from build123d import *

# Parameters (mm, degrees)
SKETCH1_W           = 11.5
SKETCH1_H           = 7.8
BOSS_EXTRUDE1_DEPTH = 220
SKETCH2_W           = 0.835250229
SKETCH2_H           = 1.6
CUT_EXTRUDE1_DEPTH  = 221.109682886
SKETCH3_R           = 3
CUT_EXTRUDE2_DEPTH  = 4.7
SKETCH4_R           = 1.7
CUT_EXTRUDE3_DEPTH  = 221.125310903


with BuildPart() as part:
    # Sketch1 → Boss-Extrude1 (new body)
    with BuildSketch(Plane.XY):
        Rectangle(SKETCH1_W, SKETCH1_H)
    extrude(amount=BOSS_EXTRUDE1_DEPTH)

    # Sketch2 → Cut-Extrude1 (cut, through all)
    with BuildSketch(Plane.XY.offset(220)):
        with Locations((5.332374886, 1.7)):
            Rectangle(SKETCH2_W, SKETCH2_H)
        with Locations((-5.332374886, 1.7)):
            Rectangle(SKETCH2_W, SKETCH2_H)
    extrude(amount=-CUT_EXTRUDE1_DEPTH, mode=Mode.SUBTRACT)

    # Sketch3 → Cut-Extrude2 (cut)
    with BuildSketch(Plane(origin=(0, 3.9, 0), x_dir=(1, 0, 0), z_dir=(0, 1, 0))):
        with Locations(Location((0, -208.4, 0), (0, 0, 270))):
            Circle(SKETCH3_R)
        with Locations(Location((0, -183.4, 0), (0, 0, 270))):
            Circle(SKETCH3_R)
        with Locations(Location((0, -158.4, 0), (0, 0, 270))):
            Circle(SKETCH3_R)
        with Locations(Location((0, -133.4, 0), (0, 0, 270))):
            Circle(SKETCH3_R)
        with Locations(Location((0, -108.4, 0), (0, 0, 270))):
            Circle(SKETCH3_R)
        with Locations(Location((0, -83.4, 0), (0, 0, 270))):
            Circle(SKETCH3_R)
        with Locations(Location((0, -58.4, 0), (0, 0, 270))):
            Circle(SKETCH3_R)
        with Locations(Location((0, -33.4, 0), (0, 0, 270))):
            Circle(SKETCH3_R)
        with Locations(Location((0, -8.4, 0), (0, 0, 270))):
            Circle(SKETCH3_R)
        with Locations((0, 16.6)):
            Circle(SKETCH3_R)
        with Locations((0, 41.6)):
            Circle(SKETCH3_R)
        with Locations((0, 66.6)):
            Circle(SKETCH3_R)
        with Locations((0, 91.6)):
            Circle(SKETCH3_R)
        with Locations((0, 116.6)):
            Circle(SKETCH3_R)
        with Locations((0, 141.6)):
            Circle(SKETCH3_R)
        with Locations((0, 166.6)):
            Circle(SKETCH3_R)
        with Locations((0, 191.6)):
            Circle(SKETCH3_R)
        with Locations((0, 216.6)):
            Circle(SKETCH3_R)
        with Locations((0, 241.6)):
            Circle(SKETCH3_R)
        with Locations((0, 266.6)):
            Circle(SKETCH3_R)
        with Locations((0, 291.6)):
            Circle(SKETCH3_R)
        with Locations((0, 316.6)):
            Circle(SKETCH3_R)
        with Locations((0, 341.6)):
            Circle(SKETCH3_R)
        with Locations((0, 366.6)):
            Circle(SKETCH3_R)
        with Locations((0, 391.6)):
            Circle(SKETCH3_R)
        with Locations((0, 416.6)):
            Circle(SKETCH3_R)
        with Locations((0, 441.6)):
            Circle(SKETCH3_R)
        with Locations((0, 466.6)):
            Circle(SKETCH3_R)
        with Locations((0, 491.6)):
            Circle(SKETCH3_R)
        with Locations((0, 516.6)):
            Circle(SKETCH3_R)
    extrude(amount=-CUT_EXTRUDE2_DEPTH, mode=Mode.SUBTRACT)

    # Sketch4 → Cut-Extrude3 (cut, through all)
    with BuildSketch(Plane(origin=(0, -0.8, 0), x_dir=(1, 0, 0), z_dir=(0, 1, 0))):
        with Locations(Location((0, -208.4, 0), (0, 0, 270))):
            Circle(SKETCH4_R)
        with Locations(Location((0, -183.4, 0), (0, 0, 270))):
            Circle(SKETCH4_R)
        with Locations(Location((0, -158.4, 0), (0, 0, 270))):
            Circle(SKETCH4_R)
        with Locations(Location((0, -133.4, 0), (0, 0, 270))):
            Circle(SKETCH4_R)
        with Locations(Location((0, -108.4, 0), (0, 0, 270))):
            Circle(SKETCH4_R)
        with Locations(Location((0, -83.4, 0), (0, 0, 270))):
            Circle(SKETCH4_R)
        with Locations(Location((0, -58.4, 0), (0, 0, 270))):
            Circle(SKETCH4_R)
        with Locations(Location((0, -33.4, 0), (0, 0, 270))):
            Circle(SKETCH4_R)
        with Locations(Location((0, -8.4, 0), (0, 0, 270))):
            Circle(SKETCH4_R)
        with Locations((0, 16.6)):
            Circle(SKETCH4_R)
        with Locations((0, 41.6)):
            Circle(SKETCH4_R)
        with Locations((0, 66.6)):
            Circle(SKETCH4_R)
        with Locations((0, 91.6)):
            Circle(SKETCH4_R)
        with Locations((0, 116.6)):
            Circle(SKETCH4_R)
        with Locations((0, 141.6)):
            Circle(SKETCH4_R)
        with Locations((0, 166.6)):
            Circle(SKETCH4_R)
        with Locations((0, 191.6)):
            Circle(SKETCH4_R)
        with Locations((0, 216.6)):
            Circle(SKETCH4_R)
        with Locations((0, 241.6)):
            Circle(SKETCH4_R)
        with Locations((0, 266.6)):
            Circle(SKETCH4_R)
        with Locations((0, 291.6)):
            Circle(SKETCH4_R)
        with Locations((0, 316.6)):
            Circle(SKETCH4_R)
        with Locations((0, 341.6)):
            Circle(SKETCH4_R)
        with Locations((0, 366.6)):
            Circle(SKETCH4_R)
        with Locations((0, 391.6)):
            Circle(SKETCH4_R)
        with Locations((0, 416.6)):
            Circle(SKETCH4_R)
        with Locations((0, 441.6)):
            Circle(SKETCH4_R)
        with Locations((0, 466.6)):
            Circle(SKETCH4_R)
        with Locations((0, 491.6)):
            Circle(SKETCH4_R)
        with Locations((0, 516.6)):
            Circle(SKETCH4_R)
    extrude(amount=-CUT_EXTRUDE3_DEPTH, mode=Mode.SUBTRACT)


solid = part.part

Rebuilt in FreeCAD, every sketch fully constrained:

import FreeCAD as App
import Part
import Sketcher

V = App.Vector
Q = App.Units.Quantity

doc = App.newDocument("Part")
body = doc.addObject("PartDesign::Body", "Body")

sketch1 = doc.addObject("Sketcher::SketchObject", "Sketch")
body.addObject(sketch1)
sketch1.AttachmentSupport = (doc.XY_Plane, [""])
sketch1.MapMode = "FlatFace"
sketch1.addGeometry([
    Part.LineSegment(V(-6, 4, 0), V(-6, -4, 0)),
    Part.LineSegment(V(-6, -4, 0), V(6, -4, 0)),
    Part.LineSegment(V(6, -4, 0), V(6, 4, 0)),
    Part.LineSegment(V(6, 4, 0), V(-6, 4, 0)),
], False)
sketch1.addConstraint([
    Sketcher.Constraint("Coincident", 0, 2, 1, 1),
    Sketcher.Constraint("Coincident", 1, 2, 2, 1),
    Sketcher.Constraint("Coincident", 2, 2, 3, 1),
    Sketcher.Constraint("Coincident", 3, 2, 0, 1),
    Sketcher.Constraint("Vertical", 0),
    Sketcher.Constraint("Horizontal", 1),
    Sketcher.Constraint("Vertical", 2),
    Sketcher.Constraint("Horizontal", 3),
    Sketcher.Constraint("Symmetric", 0, 2, 2, 2, -1, 1),
    Sketcher.Constraint("DistanceX", 1, 1, 1, 2, Q("11.5 mm")),
    Sketcher.Constraint("DistanceY", 0, 2, 0, 1, Q("7.8 mm")),
])
pad1 = doc.addObject("PartDesign::Pad", "Pad")
body.addObject(pad1)
pad1.Profile = sketch1
pad1.Length = 220

sketch2 = doc.addObject("Sketcher::SketchObject", "Sketch001")
body.addObject(sketch2)
sketch2.AttachmentSupport = (doc.XY_Plane, [""])
sketch2.MapMode = "FlatFace"
sketch2.AttachmentOffset = App.Placement(V(0, 0, 220), App.Rotation())
sketch2.addGeometry([
    Part.LineSegment(V(4.9, 2.5, 0), V(4.9, 0.9, 0)),
    Part.LineSegment(V(4.9, 0.9, 0), V(5.8, 0.9, 0)),
    Part.LineSegment(V(5.8, 0.9, 0), V(5.8, 2.5, 0)),
    Part.LineSegment(V(5.8, 2.5, 0), V(4.9, 2.5, 0)),
    Part.LineSegment(V(-5.8, 2.5, 0), V(-5.8, 0.9, 0)),
    Part.LineSegment(V(-5.8, 0.9, 0), V(-4.9, 0.9, 0)),
    Part.LineSegment(V(-4.9, 0.9, 0), V(-4.9, 2.5, 0)),
    Part.LineSegment(V(-4.9, 2.5, 0), V(-5.8, 2.5, 0)),
], False)
sketch2.addConstraint([
    Sketcher.Constraint("Coincident", 0, 2, 1, 1),
    Sketcher.Constraint("Coincident", 1, 2, 2, 1),
    Sketcher.Constraint("Coincident", 2, 2, 3, 1),
    Sketcher.Constraint("Coincident", 3, 2, 0, 1),
    Sketcher.Constraint("Coincident", 4, 2, 5, 1),
    Sketcher.Constraint("Coincident", 5, 2, 6, 1),
    Sketcher.Constraint("Coincident", 6, 2, 7, 1),
    Sketcher.Constraint("Coincident", 7, 2, 4, 1),
    Sketcher.Constraint("Vertical", 0),
    Sketcher.Constraint("Horizontal", 1),
    Sketcher.Constraint("Vertical", 2),
    Sketcher.Constraint("Horizontal", 3),
    Sketcher.Constraint("Vertical", 4),
    Sketcher.Constraint("Horizontal", 5),
    Sketcher.Constraint("Vertical", 6),
    Sketcher.Constraint("Horizontal", 7),
    Sketcher.Constraint("Symmetric", 1, 2, 4, 2, -2),
    Sketcher.Constraint("Symmetric", 3, 2, 6, 2, -2),
    Sketcher.Constraint("DistanceY", 0, 2, 0, 1, Q("1.6 mm")),
    Sketcher.Constraint("DistanceY", -1, 1, 0, 2, Q("0.9 mm")),
    Sketcher.Constraint("DistanceX", 4, 2, 1, 2, Q("11.5 mm")),
    Sketcher.Constraint("DistanceX", 1, 1, 1, 2, Q("0.83525 mm")),
])
pocket1 = doc.addObject("PartDesign::Pocket", "Pocket")
body.addObject(pocket1)
pocket1.Profile = sketch2
pocket1.Type = "ThroughAll"

sketch3 = doc.addObject("Sketcher::SketchObject", "Sketch002")
body.addObject(sketch3)
sketch3.AttachmentSupport = (doc.XZ_Plane, [""])
sketch3.MapMode = "FlatFace"
sketch3.AttachmentOffset = App.Placement(V(0, 0, -3.9), App.Rotation())
sketch3.addGeometry([
    Part.Circle(V(0, 208.4, 0), V(0, 0, 1), 3),
    Part.Circle(V(0, 183.4, 0), V(0, 0, 1), 3),
    Part.Circle(V(0, 158.4, 0), V(0, 0, 1), 3),
    Part.Circle(V(0, 133.4, 0), V(0, 0, 1), 3),
    Part.Circle(V(0, 108.4, 0), V(0, 0, 1), 3),
    Part.Circle(V(0, 83.4, 0), V(0, 0, 1), 3),
    Part.Circle(V(0, 58.4, 0), V(0, 0, 1), 3),
    Part.Circle(V(0, 33.4, 0), V(0, 0, 1), 3),
    Part.Circle(V(0, 8.4, 0), V(0, 0, 1), 3),
    Part.Circle(V(0, -16.6, 0), V(0, 0, 1), 3),
    Part.Circle(V(0, -41.6, 0), V(0, 0, 1), 3),
    Part.Circle(V(0, -66.6, 0), V(0, 0, 1), 3),
    Part.Circle(V(0, -91.6, 0), V(0, 0, 1), 3),
    Part.Circle(V(0, -116.6, 0), V(0, 0, 1), 3),
    Part.Circle(V(0, -141.6, 0), V(0, 0, 1), 3),
    Part.Circle(V(0, -166.6, 0), V(0, 0, 1), 3),
    Part.Circle(V(0, -191.6, 0), V(0, 0, 1), 3),
    Part.Circle(V(0, -216.6, 0), V(0, 0, 1), 3),
    Part.Circle(V(0, -241.6, 0), V(0, 0, 1), 3),
    Part.Circle(V(0, -266.6, 0), V(0, 0, 1), 3),
    Part.Circle(V(0, -291.6, 0), V(0, 0, 1), 3),
    Part.Circle(V(0, -316.6, 0), V(0, 0, 1), 3),
    Part.Circle(V(0, -341.6, 0), V(0, 0, 1), 3),
    Part.Circle(V(0, -366.6, 0), V(0, 0, 1), 3),
    Part.Circle(V(0, -391.6, 0), V(0, 0, 1), 3),
    Part.Circle(V(0, -416.6, 0), V(0, 0, 1), 3),
    Part.Circle(V(0, -441.6, 0), V(0, 0, 1), 3),
    Part.Circle(V(0, -466.6, 0), V(0, 0, 1), 3),
    Part.Circle(V(0, -491.6, 0), V(0, 0, 1), 3),
    Part.Circle(V(0, -516.6, 0), V(0, 0, 1), 3),
], False)
sketch3.addConstraint([
    Sketcher.Constraint("Equal", 0, 1),
    Sketcher.Constraint("Equal", 1, 2),
    Sketcher.Constraint("Equal", 2, 3),
    Sketcher.Constraint("Equal", 3, 4),
    Sketcher.Constraint("Equal", 4, 5),
    Sketcher.Constraint("Equal", 5, 6),
    Sketcher.Constraint("Equal", 6, 7),
    Sketcher.Constraint("Equal", 7, 8),
    Sketcher.Constraint("Equal", 8, 9),
    Sketcher.Constraint("Equal", 9, 10),
    Sketcher.Constraint("Equal", 10, 11),
    Sketcher.Constraint("Equal", 11, 12),
    Sketcher.Constraint("Equal", 12, 13),
    Sketcher.Constraint("Equal", 13, 14),
    Sketcher.Constraint("Equal", 14, 15),
    Sketcher.Constraint("Equal", 15, 16),
    Sketcher.Constraint("Equal", 16, 17),
    Sketcher.Constraint("Equal", 17, 18),
    Sketcher.Constraint("Equal", 18, 19),
    Sketcher.Constraint("Equal", 19, 20),
    Sketcher.Constraint("Equal", 20, 21),
    Sketcher.Constraint("Equal", 21, 22),
    Sketcher.Constraint("Equal", 22, 23),
    Sketcher.Constraint("Equal", 23, 24),
    Sketcher.Constraint("Equal", 24, 25),
    Sketcher.Constraint("Equal", 25, 26),
    Sketcher.Constraint("Equal", 26, 27),
    Sketcher.Constraint("Equal", 27, 28),
    Sketcher.Constraint("Equal", 28, 29),
    Sketcher.Constraint("PointOnObject", 0, 3, -2),
    Sketcher.Constraint("PointOnObject", 1, 3, -2),
    Sketcher.Constraint("PointOnObject", 2, 3, -2),
    Sketcher.Constraint("PointOnObject", 3, 3, -2),
    Sketcher.Constraint("PointOnObject", 4, 3, -2),
    Sketcher.Constraint("PointOnObject", 5, 3, -2),
    Sketcher.Constraint("PointOnObject", 6, 3, -2),
    Sketcher.Constraint("PointOnObject", 7, 3, -2),
    Sketcher.Constraint("PointOnObject", 8, 3, -2),
    Sketcher.Constraint("PointOnObject", 9, 3, -2),
    Sketcher.Constraint("PointOnObject", 10, 3, -2),
    Sketcher.Constraint("PointOnObject", 11, 3, -2),
    Sketcher.Constraint("PointOnObject", 12, 3, -2),
    Sketcher.Constraint("PointOnObject", 13, 3, -2),
    Sketcher.Constraint("PointOnObject", 14, 3, -2),
    Sketcher.Constraint("PointOnObject", 15, 3, -2),
    Sketcher.Constraint("PointOnObject", 16, 3, -2),
    Sketcher.Constraint("PointOnObject", 17, 3, -2),
    Sketcher.Constraint("PointOnObject", 18, 3, -2),
    Sketcher.Constraint("PointOnObject", 19, 3, -2),
    Sketcher.Constraint("PointOnObject", 20, 3, -2),
    Sketcher.Constraint("PointOnObject", 21, 3, -2),
    Sketcher.Constraint("PointOnObject", 22, 3, -2),
    Sketcher.Constraint("PointOnObject", 23, 3, -2),
    Sketcher.Constraint("PointOnObject", 24, 3, -2),
    Sketcher.Constraint("PointOnObject", 25, 3, -2),
    Sketcher.Constraint("PointOnObject", 26, 3, -2),
    Sketcher.Constraint("PointOnObject", 27, 3, -2),
    Sketcher.Constraint("PointOnObject", 28, 3, -2),
    Sketcher.Constraint("PointOnObject", 29, 3, -2),
    Sketcher.Constraint("Diameter", 0, Q("6 mm")),
    Sketcher.Constraint("DistanceY", 1, 3, 0, 3, Q("25 mm")),
    Sketcher.Constraint("DistanceY", 2, 3, 1, 3, Q("25 mm")),
    Sketcher.Constraint("DistanceY", 3, 3, 2, 3, Q("25 mm")),
    Sketcher.Constraint("DistanceY", 4, 3, 3, 3, Q("25 mm")),
    Sketcher.Constraint("DistanceY", 5, 3, 4, 3, Q("25 mm")),
    Sketcher.Constraint("DistanceY", 6, 3, 5, 3, Q("25 mm")),
    Sketcher.Constraint("DistanceY", 7, 3, 6, 3, Q("25 mm")),
    Sketcher.Constraint("DistanceY", 8, 3, 7, 3, Q("25 mm")),
    Sketcher.Constraint("DistanceY", 9, 3, 8, 3, Q("25 mm")),
    Sketcher.Constraint("DistanceY", 10, 3, 9, 3, Q("25 mm")),
    Sketcher.Constraint("DistanceY", 11, 3, 10, 3, Q("25 mm")),
    Sketcher.Constraint("DistanceY", 12, 3, 11, 3, Q("25 mm")),
    Sketcher.Constraint("DistanceY", 13, 3, 12, 3, Q("25 mm")),
    Sketcher.Constraint("DistanceY", 14, 3, 13, 3, Q("25 mm")),
    Sketcher.Constraint("DistanceY", 15, 3, 14, 3, Q("25 mm")),
    Sketcher.Constraint("DistanceY", 16, 3, 15, 3, Q("25 mm")),
    Sketcher.Constraint("DistanceY", 17, 3, 16, 3, Q("25 mm")),
    Sketcher.Constraint("DistanceY", 18, 3, 17, 3, Q("25 mm")),
    Sketcher.Constraint("DistanceY", 19, 3, 18, 3, Q("25 mm")),
    Sketcher.Constraint("DistanceY", 20, 3, 19, 3, Q("25 mm")),
    Sketcher.Constraint("DistanceY", 21, 3, 20, 3, Q("25 mm")),
    Sketcher.Constraint("DistanceY", 22, 3, 21, 3, Q("25 mm")),
    Sketcher.Constraint("DistanceY", 23, 3, 22, 3, Q("25 mm")),
    Sketcher.Constraint("DistanceY", 24, 3, 23, 3, Q("25 mm")),
    Sketcher.Constraint("DistanceY", 25, 3, 24, 3, Q("25 mm")),
    Sketcher.Constraint("DistanceY", 26, 3, 25, 3, Q("25 mm")),
    Sketcher.Constraint("DistanceY", 27, 3, 26, 3, Q("25 mm")),
    Sketcher.Constraint("DistanceY", 28, 3, 27, 3, Q("25 mm")),
    Sketcher.Constraint("DistanceY", 29, 3, 28, 3, Q("25 mm")),
    Sketcher.Constraint("DistanceY", -1, 1, 0, 3, Q("208.4 mm")),
])
pocket2 = doc.addObject("PartDesign::Pocket", "Pocket001")
body.addObject(pocket2)
pocket2.Profile = sketch3
pocket2.Length = 4.7
pocket2.Reversed = True

sketch4 = doc.addObject("Sketcher::SketchObject", "Sketch003")
body.addObject(sketch4)
sketch4.AttachmentSupport = (doc.XZ_Plane, [""])
sketch4.MapMode = "FlatFace"
sketch4.AttachmentOffset = App.Placement(V(0, 0, 0.8), App.Rotation())
sketch4.addGeometry([
    Part.Circle(V(0, 208.4, 0), V(0, 0, 1), 1.7),
    Part.Circle(V(0, 183.4, 0), V(0, 0, 1), 1.7),
    Part.Circle(V(0, 158.4, 0), V(0, 0, 1), 1.7),
    Part.Circle(V(0, 133.4, 0), V(0, 0, 1), 1.7),
    Part.Circle(V(0, 108.4, 0), V(0, 0, 1), 1.7),
    Part.Circle(V(0, 83.4, 0), V(0, 0, 1), 1.7),
    Part.Circle(V(0, 58.4, 0), V(0, 0, 1), 1.7),
    Part.Circle(V(0, 33.4, 0), V(0, 0, 1), 1.7),
    Part.Circle(V(0, 8.4, 0), V(0, 0, 1), 1.7),
    Part.Circle(V(0, -16.6, 0), V(0, 0, 1), 1.7),
    Part.Circle(V(0, -41.6, 0), V(0, 0, 1), 1.7),
    Part.Circle(V(0, -66.6, 0), V(0, 0, 1), 1.7),
    Part.Circle(V(0, -91.6, 0), V(0, 0, 1), 1.7),
    Part.Circle(V(0, -116.6, 0), V(0, 0, 1), 1.7),
    Part.Circle(V(0, -141.6, 0), V(0, 0, 1), 1.7),
    Part.Circle(V(0, -166.6, 0), V(0, 0, 1), 1.7),
    Part.Circle(V(0, -191.6, 0), V(0, 0, 1), 1.7),
    Part.Circle(V(0, -216.6, 0), V(0, 0, 1), 1.7),
    Part.Circle(V(0, -241.6, 0), V(0, 0, 1), 1.7),
    Part.Circle(V(0, -266.6, 0), V(0, 0, 1), 1.7),
    Part.Circle(V(0, -291.6, 0), V(0, 0, 1), 1.7),
    Part.Circle(V(0, -316.6, 0), V(0, 0, 1), 1.7),
    Part.Circle(V(0, -341.6, 0), V(0, 0, 1), 1.7),
    Part.Circle(V(0, -366.6, 0), V(0, 0, 1), 1.7),
    Part.Circle(V(0, -391.6, 0), V(0, 0, 1), 1.7),
    Part.Circle(V(0, -416.6, 0), V(0, 0, 1), 1.7),
    Part.Circle(V(0, -441.6, 0), V(0, 0, 1), 1.7),
    Part.Circle(V(0, -466.6, 0), V(0, 0, 1), 1.7),
    Part.Circle(V(0, -491.6, 0), V(0, 0, 1), 1.7),
    Part.Circle(V(0, -516.6, 0), V(0, 0, 1), 1.7),
], False)
sketch4.addConstraint([
    Sketcher.Constraint("Equal", 0, 1),
    Sketcher.Constraint("Equal", 1, 2),
    Sketcher.Constraint("Equal", 2, 3),
    Sketcher.Constraint("Equal", 3, 4),
    Sketcher.Constraint("Equal", 4, 5),
    Sketcher.Constraint("Equal", 5, 6),
    Sketcher.Constraint("Equal", 6, 7),
    Sketcher.Constraint("Equal", 7, 8),
    Sketcher.Constraint("Equal", 8, 9),
    Sketcher.Constraint("Equal", 9, 10),
    Sketcher.Constraint("Equal", 10, 11),
    Sketcher.Constraint("Equal", 11, 12),
    Sketcher.Constraint("Equal", 12, 13),
    Sketcher.Constraint("Equal", 13, 14),
    Sketcher.Constraint("Equal", 14, 15),
    Sketcher.Constraint("Equal", 15, 16),
    Sketcher.Constraint("Equal", 16, 17),
    Sketcher.Constraint("Equal", 17, 18),
    Sketcher.Constraint("Equal", 18, 19),
    Sketcher.Constraint("Equal", 19, 20),
    Sketcher.Constraint("Equal", 20, 21),
    Sketcher.Constraint("Equal", 21, 22),
    Sketcher.Constraint("Equal", 22, 23),
    Sketcher.Constraint("Equal", 23, 24),
    Sketcher.Constraint("Equal", 24, 25),
    Sketcher.Constraint("Equal", 25, 26),
    Sketcher.Constraint("Equal", 26, 27),
    Sketcher.Constraint("Equal", 27, 28),
    Sketcher.Constraint("Equal", 28, 29),
    Sketcher.Constraint("PointOnObject", 0, 3, -2),
    Sketcher.Constraint("PointOnObject", 1, 3, -2),
    Sketcher.Constraint("PointOnObject", 2, 3, -2),
    Sketcher.Constraint("PointOnObject", 3, 3, -2),
    Sketcher.Constraint("PointOnObject", 4, 3, -2),
    Sketcher.Constraint("PointOnObject", 5, 3, -2),
    Sketcher.Constraint("PointOnObject", 6, 3, -2),
    Sketcher.Constraint("PointOnObject", 7, 3, -2),
    Sketcher.Constraint("PointOnObject", 8, 3, -2),
    Sketcher.Constraint("PointOnObject", 9, 3, -2),
    Sketcher.Constraint("PointOnObject", 10, 3, -2),
    Sketcher.Constraint("PointOnObject", 11, 3, -2),
    Sketcher.Constraint("PointOnObject", 12, 3, -2),
    Sketcher.Constraint("PointOnObject", 13, 3, -2),
    Sketcher.Constraint("PointOnObject", 14, 3, -2),
    Sketcher.Constraint("PointOnObject", 15, 3, -2),
    Sketcher.Constraint("PointOnObject", 16, 3, -2),
    Sketcher.Constraint("PointOnObject", 17, 3, -2),
    Sketcher.Constraint("PointOnObject", 18, 3, -2),
    Sketcher.Constraint("PointOnObject", 19, 3, -2),
    Sketcher.Constraint("PointOnObject", 20, 3, -2),
    Sketcher.Constraint("PointOnObject", 21, 3, -2),
    Sketcher.Constraint("PointOnObject", 22, 3, -2),
    Sketcher.Constraint("PointOnObject", 23, 3, -2),
    Sketcher.Constraint("PointOnObject", 24, 3, -2),
    Sketcher.Constraint("PointOnObject", 25, 3, -2),
    Sketcher.Constraint("PointOnObject", 26, 3, -2),
    Sketcher.Constraint("PointOnObject", 27, 3, -2),
    Sketcher.Constraint("PointOnObject", 28, 3, -2),
    Sketcher.Constraint("PointOnObject", 29, 3, -2),
    Sketcher.Constraint("Diameter", 0, Q("3.4 mm")),
    Sketcher.Constraint("DistanceY", 1, 3, 0, 3, Q("25 mm")),
    Sketcher.Constraint("DistanceY", 2, 3, 1, 3, Q("25 mm")),
    Sketcher.Constraint("DistanceY", 3, 3, 2, 3, Q("25 mm")),
    Sketcher.Constraint("DistanceY", 4, 3, 3, 3, Q("25 mm")),
    Sketcher.Constraint("DistanceY", 5, 3, 4, 3, Q("25 mm")),
    Sketcher.Constraint("DistanceY", 6, 3, 5, 3, Q("25 mm")),
    Sketcher.Constraint("DistanceY", 7, 3, 6, 3, Q("25 mm")),
    Sketcher.Constraint("DistanceY", 8, 3, 7, 3, Q("25 mm")),
    Sketcher.Constraint("DistanceY", 9, 3, 8, 3, Q("25 mm")),
    Sketcher.Constraint("DistanceY", 10, 3, 9, 3, Q("25 mm")),
    Sketcher.Constraint("DistanceY", 11, 3, 10, 3, Q("25 mm")),
    Sketcher.Constraint("DistanceY", 12, 3, 11, 3, Q("25 mm")),
    Sketcher.Constraint("DistanceY", 13, 3, 12, 3, Q("25 mm")),
    Sketcher.Constraint("DistanceY", 14, 3, 13, 3, Q("25 mm")),
    Sketcher.Constraint("DistanceY", 15, 3, 14, 3, Q("25 mm")),
    Sketcher.Constraint("DistanceY", 16, 3, 15, 3, Q("25 mm")),
    Sketcher.Constraint("DistanceY", 17, 3, 16, 3, Q("25 mm")),
    Sketcher.Constraint("DistanceY", 18, 3, 17, 3, Q("25 mm")),
    Sketcher.Constraint("DistanceY", 19, 3, 18, 3, Q("25 mm")),
    Sketcher.Constraint("DistanceY", 20, 3, 19, 3, Q("25 mm")),
    Sketcher.Constraint("DistanceY", 21, 3, 20, 3, Q("25 mm")),
    Sketcher.Constraint("DistanceY", 22, 3, 21, 3, Q("25 mm")),
    Sketcher.Constraint("DistanceY", 23, 3, 22, 3, Q("25 mm")),
    Sketcher.Constraint("DistanceY", 24, 3, 23, 3, Q("25 mm")),
    Sketcher.Constraint("DistanceY", 25, 3, 24, 3, Q("25 mm")),
    Sketcher.Constraint("DistanceY", 26, 3, 25, 3, Q("25 mm")),
    Sketcher.Constraint("DistanceY", 27, 3, 26, 3, Q("25 mm")),
    Sketcher.Constraint("DistanceY", 28, 3, 27, 3, Q("25 mm")),
    Sketcher.Constraint("DistanceY", 29, 3, 28, 3, Q("25 mm")),
    Sketcher.Constraint("DistanceY", -1, 1, 0, 3, Q("208.4 mm")),
])
pocket3 = doc.addObject("PartDesign::Pocket", "Pocket002")
body.addObject(pocket3)
pocket3.Profile = sketch4
pocket3.Type = "ThroughAll"
pocket3.Reversed = True

doc.recompute()
